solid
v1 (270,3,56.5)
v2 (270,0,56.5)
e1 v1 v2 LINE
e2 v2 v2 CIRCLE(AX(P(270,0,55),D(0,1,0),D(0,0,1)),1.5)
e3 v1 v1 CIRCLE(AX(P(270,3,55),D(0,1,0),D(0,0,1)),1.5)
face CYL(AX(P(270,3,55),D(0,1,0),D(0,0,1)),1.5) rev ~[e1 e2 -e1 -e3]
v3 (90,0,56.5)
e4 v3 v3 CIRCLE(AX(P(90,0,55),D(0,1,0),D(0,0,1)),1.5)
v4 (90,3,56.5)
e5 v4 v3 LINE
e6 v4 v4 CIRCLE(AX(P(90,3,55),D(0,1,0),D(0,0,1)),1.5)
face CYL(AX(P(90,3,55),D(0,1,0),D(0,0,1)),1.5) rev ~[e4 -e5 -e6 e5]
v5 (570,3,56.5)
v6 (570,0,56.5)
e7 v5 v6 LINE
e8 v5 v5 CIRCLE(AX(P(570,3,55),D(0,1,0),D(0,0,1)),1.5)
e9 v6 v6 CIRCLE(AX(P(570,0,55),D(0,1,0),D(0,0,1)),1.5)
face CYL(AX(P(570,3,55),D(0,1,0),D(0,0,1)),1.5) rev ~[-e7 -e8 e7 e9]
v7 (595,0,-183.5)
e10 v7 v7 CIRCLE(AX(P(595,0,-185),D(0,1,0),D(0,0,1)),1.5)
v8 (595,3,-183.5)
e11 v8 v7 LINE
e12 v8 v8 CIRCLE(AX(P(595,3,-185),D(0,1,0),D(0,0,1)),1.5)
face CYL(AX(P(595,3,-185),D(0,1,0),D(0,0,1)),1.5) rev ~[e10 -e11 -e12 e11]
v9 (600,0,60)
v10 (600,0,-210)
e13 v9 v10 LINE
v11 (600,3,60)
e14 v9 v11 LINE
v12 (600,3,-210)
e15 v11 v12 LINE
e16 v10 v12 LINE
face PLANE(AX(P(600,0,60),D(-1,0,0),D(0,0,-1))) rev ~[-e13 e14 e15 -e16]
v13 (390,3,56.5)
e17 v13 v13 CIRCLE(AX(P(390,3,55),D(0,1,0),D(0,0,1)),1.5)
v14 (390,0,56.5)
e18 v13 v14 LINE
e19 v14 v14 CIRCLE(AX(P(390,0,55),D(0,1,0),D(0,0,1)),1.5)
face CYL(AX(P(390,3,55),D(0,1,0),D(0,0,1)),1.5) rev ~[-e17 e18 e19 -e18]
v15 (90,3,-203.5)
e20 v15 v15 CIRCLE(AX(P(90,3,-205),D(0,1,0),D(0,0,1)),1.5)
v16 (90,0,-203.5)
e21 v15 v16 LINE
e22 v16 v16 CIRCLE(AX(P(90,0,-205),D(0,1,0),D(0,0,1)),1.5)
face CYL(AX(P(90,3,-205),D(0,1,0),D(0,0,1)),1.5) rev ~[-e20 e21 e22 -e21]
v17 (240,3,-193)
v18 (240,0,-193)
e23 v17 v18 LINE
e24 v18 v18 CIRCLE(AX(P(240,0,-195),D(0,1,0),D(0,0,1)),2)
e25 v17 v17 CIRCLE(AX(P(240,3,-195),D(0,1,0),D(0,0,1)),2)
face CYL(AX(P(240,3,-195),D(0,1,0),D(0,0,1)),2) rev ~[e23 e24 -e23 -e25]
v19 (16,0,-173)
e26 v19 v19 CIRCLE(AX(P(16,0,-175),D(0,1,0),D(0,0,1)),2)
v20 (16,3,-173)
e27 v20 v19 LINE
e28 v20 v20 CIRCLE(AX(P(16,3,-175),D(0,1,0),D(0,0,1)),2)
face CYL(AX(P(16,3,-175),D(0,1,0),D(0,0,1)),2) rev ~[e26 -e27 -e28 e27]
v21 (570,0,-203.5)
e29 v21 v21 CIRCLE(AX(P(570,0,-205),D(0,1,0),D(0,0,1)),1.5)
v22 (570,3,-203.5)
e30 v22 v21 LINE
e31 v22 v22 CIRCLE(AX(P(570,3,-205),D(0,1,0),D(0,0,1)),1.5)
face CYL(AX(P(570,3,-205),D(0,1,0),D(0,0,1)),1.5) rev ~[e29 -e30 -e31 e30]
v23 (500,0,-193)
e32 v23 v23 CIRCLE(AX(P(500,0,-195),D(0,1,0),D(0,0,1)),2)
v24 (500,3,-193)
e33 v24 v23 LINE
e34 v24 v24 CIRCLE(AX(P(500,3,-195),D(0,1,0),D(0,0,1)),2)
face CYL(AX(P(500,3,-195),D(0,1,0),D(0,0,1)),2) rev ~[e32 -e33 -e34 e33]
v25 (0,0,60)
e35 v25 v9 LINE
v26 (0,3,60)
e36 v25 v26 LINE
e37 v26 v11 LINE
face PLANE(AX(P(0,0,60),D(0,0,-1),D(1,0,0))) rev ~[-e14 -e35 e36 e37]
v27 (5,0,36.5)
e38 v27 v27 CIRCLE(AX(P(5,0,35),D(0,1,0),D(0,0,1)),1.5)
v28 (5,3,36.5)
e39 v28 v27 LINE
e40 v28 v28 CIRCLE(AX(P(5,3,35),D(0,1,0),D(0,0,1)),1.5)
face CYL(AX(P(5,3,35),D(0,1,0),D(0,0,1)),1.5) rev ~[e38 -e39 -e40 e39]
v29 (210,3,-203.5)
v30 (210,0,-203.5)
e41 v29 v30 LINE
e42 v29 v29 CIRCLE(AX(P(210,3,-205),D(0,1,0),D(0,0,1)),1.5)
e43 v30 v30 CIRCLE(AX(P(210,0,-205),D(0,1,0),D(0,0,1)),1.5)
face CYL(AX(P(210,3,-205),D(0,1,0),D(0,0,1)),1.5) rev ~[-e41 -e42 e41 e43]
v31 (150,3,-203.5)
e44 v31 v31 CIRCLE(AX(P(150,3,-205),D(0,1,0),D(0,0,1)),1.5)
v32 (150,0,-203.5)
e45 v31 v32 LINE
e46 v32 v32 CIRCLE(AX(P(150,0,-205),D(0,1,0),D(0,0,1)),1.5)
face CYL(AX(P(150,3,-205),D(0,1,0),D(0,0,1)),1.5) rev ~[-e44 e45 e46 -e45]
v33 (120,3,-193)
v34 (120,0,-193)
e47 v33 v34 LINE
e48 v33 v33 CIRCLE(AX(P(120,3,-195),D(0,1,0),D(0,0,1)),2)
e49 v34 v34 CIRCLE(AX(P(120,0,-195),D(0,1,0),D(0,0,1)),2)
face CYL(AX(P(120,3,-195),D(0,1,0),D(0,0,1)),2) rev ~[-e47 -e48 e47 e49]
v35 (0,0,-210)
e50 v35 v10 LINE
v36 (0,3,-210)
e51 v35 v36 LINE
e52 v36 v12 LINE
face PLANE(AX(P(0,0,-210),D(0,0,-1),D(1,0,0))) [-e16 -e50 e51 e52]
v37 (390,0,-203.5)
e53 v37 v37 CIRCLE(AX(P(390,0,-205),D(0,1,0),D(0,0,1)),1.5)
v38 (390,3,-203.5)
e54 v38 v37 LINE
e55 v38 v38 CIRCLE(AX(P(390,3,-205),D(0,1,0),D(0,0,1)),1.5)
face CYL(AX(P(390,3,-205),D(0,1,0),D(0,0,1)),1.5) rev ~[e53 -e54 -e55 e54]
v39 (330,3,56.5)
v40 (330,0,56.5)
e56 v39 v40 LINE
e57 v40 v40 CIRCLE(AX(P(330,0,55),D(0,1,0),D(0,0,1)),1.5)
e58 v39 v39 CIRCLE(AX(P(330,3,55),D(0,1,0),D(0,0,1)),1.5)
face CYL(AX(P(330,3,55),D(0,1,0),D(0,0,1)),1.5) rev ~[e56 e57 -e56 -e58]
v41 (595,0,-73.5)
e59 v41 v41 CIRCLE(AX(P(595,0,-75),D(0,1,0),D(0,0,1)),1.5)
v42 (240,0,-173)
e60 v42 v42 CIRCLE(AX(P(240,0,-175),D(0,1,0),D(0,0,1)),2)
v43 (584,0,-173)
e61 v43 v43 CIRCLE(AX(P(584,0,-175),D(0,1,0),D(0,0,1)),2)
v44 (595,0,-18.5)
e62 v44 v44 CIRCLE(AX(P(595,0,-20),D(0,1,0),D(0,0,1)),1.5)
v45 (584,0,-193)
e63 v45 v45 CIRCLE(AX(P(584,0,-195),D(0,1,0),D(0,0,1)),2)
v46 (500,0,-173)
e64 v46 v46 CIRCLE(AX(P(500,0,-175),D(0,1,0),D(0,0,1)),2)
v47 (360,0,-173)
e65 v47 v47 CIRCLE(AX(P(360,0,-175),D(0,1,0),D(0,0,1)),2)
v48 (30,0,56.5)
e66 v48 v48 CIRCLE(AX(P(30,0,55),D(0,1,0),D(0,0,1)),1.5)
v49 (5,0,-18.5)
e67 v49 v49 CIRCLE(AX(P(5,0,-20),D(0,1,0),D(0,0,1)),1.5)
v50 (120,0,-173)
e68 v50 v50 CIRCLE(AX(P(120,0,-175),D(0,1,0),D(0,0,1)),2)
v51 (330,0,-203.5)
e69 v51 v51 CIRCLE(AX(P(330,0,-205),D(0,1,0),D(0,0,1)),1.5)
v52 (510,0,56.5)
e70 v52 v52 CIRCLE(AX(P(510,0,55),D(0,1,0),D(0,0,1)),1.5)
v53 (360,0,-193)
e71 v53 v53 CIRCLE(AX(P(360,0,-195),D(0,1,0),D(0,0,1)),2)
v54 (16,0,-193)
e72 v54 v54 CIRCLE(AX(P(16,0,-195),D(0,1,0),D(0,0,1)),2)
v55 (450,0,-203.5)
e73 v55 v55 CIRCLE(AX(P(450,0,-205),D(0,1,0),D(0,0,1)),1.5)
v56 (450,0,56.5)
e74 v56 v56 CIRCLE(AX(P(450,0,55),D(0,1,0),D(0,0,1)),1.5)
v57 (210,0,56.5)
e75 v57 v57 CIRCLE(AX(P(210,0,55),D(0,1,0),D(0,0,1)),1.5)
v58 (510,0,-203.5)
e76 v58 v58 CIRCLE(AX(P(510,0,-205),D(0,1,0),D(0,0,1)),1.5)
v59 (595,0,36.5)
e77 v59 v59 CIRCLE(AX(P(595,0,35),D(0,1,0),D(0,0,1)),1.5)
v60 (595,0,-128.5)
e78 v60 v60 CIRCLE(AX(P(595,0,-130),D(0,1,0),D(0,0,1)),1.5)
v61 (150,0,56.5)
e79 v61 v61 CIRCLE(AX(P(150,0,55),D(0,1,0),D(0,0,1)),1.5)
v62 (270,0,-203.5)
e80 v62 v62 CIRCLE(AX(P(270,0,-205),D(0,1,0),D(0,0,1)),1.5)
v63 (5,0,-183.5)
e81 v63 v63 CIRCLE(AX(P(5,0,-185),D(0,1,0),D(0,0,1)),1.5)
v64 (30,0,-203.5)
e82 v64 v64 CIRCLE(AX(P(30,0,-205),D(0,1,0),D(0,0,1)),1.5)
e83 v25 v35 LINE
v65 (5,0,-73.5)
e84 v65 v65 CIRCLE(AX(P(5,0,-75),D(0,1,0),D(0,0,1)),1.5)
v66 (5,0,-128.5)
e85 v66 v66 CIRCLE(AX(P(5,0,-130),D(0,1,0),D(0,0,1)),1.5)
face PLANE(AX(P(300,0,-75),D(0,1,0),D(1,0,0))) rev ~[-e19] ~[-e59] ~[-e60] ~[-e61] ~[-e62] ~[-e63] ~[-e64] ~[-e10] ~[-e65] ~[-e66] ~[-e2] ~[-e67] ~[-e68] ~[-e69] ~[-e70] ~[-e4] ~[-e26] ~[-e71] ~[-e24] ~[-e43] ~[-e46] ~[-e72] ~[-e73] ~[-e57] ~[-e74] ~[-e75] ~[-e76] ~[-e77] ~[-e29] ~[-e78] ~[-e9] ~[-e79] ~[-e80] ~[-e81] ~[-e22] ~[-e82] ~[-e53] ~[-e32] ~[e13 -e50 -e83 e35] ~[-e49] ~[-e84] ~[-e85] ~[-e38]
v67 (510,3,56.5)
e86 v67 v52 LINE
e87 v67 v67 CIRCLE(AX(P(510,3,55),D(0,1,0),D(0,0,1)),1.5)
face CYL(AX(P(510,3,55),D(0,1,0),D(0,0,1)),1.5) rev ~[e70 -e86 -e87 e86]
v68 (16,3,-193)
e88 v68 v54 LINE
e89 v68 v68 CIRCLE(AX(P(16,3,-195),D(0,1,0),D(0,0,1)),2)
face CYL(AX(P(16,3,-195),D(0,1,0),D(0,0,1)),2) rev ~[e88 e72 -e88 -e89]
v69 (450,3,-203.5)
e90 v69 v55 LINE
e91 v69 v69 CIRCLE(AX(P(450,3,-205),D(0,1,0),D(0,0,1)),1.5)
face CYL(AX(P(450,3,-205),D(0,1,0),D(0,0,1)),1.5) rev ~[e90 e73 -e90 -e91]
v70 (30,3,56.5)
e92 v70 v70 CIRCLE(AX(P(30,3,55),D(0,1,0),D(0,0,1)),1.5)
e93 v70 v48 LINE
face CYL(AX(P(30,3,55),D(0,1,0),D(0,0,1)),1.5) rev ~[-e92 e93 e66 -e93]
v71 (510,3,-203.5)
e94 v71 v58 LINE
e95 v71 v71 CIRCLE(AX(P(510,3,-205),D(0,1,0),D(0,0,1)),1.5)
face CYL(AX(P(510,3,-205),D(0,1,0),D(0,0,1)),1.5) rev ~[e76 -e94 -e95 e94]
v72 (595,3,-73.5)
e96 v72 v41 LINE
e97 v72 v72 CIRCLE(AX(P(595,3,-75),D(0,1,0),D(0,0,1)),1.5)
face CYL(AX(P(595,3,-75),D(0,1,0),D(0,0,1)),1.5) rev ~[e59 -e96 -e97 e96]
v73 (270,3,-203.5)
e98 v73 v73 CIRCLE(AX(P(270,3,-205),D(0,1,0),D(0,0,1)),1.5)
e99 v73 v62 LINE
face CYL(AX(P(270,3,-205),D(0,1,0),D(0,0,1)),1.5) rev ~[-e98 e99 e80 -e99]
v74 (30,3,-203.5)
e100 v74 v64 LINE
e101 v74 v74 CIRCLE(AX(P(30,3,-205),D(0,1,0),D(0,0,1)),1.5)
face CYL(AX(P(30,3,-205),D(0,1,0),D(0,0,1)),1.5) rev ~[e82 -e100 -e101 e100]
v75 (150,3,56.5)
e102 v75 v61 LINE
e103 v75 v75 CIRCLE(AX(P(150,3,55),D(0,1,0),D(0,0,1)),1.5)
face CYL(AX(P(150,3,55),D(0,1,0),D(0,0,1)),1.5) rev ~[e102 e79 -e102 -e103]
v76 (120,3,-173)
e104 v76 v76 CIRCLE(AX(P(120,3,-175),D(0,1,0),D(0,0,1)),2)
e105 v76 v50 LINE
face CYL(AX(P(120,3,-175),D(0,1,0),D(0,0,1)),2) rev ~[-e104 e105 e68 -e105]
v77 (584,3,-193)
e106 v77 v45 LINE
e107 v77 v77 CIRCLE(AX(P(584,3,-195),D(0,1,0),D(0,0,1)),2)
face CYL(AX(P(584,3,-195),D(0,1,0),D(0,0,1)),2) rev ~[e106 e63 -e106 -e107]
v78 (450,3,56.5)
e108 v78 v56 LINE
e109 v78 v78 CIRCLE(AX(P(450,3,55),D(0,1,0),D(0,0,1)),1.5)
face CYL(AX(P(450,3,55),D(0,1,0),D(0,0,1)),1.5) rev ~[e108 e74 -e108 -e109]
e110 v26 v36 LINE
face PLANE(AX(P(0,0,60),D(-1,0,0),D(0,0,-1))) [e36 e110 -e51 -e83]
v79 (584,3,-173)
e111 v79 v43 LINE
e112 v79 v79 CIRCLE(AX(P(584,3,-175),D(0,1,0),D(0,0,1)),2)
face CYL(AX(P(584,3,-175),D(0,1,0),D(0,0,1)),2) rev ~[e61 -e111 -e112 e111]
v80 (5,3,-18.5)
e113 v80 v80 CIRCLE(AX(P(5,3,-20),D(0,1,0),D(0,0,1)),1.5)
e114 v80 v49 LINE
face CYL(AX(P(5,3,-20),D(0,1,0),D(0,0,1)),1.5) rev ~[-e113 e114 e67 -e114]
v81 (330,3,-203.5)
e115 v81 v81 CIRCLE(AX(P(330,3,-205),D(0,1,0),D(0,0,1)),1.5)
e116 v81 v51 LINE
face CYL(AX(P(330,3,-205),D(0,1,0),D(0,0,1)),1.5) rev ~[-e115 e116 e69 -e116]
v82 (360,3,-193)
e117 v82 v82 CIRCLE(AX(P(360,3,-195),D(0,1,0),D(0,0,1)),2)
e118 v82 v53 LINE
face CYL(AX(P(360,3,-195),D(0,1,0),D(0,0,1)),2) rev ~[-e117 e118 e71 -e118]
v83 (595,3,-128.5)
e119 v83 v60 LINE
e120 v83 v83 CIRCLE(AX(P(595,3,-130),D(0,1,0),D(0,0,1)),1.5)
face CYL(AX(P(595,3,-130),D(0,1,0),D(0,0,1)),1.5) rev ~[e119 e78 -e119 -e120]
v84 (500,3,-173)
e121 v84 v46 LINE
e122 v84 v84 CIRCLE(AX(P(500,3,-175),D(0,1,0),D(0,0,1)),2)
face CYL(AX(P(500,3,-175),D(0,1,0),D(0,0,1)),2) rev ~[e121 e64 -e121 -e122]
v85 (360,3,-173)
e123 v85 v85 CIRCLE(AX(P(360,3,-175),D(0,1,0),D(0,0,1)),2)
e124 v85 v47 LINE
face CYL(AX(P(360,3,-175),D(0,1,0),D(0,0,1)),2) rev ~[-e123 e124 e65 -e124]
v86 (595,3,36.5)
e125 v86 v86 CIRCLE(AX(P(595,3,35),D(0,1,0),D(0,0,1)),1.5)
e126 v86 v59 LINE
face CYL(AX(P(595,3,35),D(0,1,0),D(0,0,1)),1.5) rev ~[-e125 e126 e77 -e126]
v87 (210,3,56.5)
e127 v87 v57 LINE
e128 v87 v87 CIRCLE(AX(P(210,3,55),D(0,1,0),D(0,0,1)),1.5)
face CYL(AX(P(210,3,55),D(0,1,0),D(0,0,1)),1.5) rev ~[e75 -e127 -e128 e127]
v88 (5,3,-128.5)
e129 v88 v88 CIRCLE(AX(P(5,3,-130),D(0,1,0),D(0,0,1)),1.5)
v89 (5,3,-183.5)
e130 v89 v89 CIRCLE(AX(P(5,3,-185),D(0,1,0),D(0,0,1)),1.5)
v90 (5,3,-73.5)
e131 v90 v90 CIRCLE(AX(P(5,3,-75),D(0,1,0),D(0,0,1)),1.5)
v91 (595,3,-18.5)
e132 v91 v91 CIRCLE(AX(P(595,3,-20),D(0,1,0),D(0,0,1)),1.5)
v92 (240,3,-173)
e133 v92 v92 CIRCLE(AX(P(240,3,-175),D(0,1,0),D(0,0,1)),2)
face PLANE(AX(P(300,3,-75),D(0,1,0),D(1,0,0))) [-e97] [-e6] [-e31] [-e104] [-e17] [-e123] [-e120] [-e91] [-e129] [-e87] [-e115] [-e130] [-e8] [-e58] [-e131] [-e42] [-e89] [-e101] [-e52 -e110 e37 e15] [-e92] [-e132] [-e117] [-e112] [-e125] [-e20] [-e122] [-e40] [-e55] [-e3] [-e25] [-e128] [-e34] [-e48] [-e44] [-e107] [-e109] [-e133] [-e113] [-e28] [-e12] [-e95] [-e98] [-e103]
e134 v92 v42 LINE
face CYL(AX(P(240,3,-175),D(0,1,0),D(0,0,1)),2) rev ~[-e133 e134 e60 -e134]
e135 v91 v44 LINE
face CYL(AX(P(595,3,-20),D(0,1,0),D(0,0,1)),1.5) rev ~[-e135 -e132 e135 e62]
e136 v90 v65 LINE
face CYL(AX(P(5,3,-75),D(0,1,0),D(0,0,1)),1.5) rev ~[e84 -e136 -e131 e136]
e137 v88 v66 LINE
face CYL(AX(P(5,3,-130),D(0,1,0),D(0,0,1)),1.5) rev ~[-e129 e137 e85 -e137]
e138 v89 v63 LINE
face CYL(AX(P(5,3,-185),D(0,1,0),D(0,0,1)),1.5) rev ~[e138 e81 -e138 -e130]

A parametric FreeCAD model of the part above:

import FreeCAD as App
import Part
import Sketcher
Q = App.Units.Quantity

doc = App.newDocument("Part")
body = doc.addObject("PartDesign::Body", "Body")

# Sketch on XZ plane
sketch1 = body.newObject("Sketcher::SketchObject", "Sketch")
sketch1.AttachmentSupport = (doc.getObject("XZ_Plane"), [""])
sketch1.MapMode = "FlatFace"
sketch1.addGeometry([
    Part.LineSegment(App.Vector(0, -210, 0), App.Vector(0, 60, 0)),
    Part.LineSegment(App.Vector(0, 60, 0), App.Vector(600, 60, 0)),
    Part.LineSegment(App.Vector(600, 60, 0), App.Vector(600, -210, 0)),
    Part.LineSegment(App.Vector(600, -210, 0), App.Vector(0, -210, 0)),
], False)
sketch1.addConstraint([
    Sketcher.Constraint("Coincident", 0, 2, 1, 1),
    Sketcher.Constraint("Coincident", 1, 2, 2, 1),
    Sketcher.Constraint("Coincident", 2, 2, 3, 1),
    Sketcher.Constraint("Coincident", 3, 2, 0, 1),
    Sketcher.Constraint("Vertical", 0),
    Sketcher.Constraint("Horizontal", 1),
    Sketcher.Constraint("Vertical", 2),
    Sketcher.Constraint("Horizontal", 3),
    Sketcher.Constraint("PointOnObject", 0, 2, -2),
    Sketcher.Constraint("DistanceX", 1, 1, 1, 2, Q("600 mm")),
    Sketcher.Constraint("DistanceY", 0, 1, 0, 2, Q("270 mm")),
    Sketcher.Constraint("DistanceY", -1, 1, 0, 2, Q("60 mm")),
])
pad1 = body.newObject("PartDesign::Pad", "Pad")
pad1.Profile = sketch1
pad1.Length = 3
pad1.Reversed = True

# Sketch on XZ plane
sketch2 = body.newObject("Sketcher::SketchObject", "Sketch001")
sketch2.AttachmentSupport = (doc.getObject("XZ_Plane"), [""])
sketch2.MapMode = "FlatFace"
sketch2.AttachmentOffset = App.Placement(App.Vector(0, 0, -3), App.Rotation())
sketch2.addGeometry([
    Part.Circle(App.Vector(16, -195, 0), App.Vector(0, 0, 1), 2),  # 0
    Part.Circle(App.Vector(16, -175, 0), App.Vector(0, 0, 1), 2),  # 1
    Part.Circle(App.Vector(584, -195, 0), App.Vector(0, 0, 1), 2),  # 2
    Part.Circle(App.Vector(584, -175, 0), App.Vector(0, 0, 1), 2),  # 3
    Part.Circle(App.Vector(120, -195, 0), App.Vector(0, 0, 1), 2),  # 4
    Part.Circle(App.Vector(120, -175, 0), App.Vector(0, 0, 1), 2),  # 5
    Part.Circle(App.Vector(240, -195, 0), App.Vector(0, 0, 1), 2),  # 6
    Part.Circle(App.Vector(240, -175, 0), App.Vector(0, 0, 1), 2),  # 7
    Part.Circle(App.Vector(360, -195, 0), App.Vector(0, 0, 1), 2),  # 8
    Part.Circle(App.Vector(360, -175, 0), App.Vector(0, 0, 1), 2),  # 9
    Part.Circle(App.Vector(500, -195, 0), App.Vector(0, 0, 1), 2),  # 10
    Part.Circle(App.Vector(500, -175, 0), App.Vector(0, 0, 1), 2),  # 11
], False)
sketch2.addConstraint([
    Sketcher.Constraint("Equal", 0, 1),
    Sketcher.Constraint("Equal", 1, 2),
    Sketcher.Constraint("Equal", 2, 3),
    Sketcher.Constraint("Equal", 3, 4),
    Sketcher.Constraint("Equal", 4, 5),
    Sketcher.Constraint("Equal", 5, 6),
    Sketcher.Constraint("Equal", 6, 7),
    Sketcher.Constraint("Equal", 7, 8),
    Sketcher.Constraint("Equal", 8, 9),
    Sketcher.Constraint("Equal", 9, 10),
    Sketcher.Constraint("Equal", 10, 11),
    Sketcher.Constraint("Horizontal", 0, 3, 2, 3),
    Sketcher.Constraint("Horizontal", 1, 3, 3, 3),
    Sketcher.Constraint("Horizontal", 2, 3, 4, 3),
    Sketcher.Constraint("Horizontal", 3, 3, 5, 3),
    Sketcher.Constraint("Horizontal", 4, 3, 6, 3),
    Sketcher.Constraint("Horizontal", 5, 3, 7, 3),
    Sketcher.Constraint("Horizontal", 6, 3, 8, 3),
    Sketcher.Constraint("Horizontal", 7, 3, 9, 3),
    Sketcher.Constraint("Horizontal", 8, 3, 10, 3),
    Sketcher.Constraint("Horizontal", 9, 3, 11, 3),
    Sketcher.Constraint("Vertical", 0, 3, 1, 3),
    Sketcher.Constraint("Vertical", 2, 3, 3, 3),
    Sketcher.Constraint("Vertical", 4, 3, 5, 3),
    Sketcher.Constraint("Vertical", 6, 3, 7, 3),
    Sketcher.Constraint("Vertical", 8, 3, 9, 3),
    Sketcher.Constraint("Vertical", 10, 3, 11, 3),
    Sketcher.Constraint("Diameter", 0, Q("4 mm")),
    Sketcher.Constraint("DistanceX", -1, 1, 0, 3, Q("16 mm")),
    Sketcher.Constraint("DistanceY", 0, 3, -1, 1, Q("195 mm")),
    Sketcher.Constraint("DistanceY", 1, 3, -1, 1, Q("175 mm")),
    Sketcher.Constraint("DistanceX", -1, 1, 2, 3, Q("584 mm")),
    Sketcher.Constraint("DistanceX", -1, 1, 4, 3, Q("120 mm")),
    Sketcher.Constraint("DistanceX", -1, 1, 6, 3, Q("240 mm")),
    Sketcher.Constraint("DistanceX", -1, 1, 8, 3, Q("360 mm")),
    Sketcher.Constraint("DistanceX", -1, 1, 10, 3, Q("500 mm")),
])
pocket1 = body.newObject("PartDesign::Pocket", "Pocket")
pocket1.Profile = sketch2
pocket1.Type = "ThroughAll"
pocket1.Reversed = True

# Sketch on XZ plane
sketch3 = body.newObject("Sketcher::SketchObject", "Sketch002")
sketch3.AttachmentSupport = (doc.getObject("XZ_Plane"), [""])
sketch3.MapMode = "FlatFace"
sketch3.AttachmentOffset = App.Placement(App.Vector(0, 0, -3), App.Rotation())
sketch3.addGeometry([
    Part.Circle(App.Vector(30, 55, 0), App.Vector(0, 0, 1), 1.5),
    Part.Circle(App.Vector(30, -205, 0), App.Vector(0, 0, 1), 1.5),
], False)
sketch3.addConstraint([
    Sketcher.Constraint("Equal", 0, 1),
    Sketcher.Constraint("Vertical", 0, 3, 1, 3),
    Sketcher.Constraint("Diameter", 0, Q("3 mm")),
    Sketcher.Constraint("DistanceX", -1, 1, 0, 3, Q("30 mm")),
    Sketcher.Constraint("DistanceY", -1, 1, 0, 3, Q("55 mm")),
    Sketcher.Constraint("DistanceY", 1, 3, -1, 1, Q("205 mm")),
])
pocket2 = body.newObject("PartDesign::Pocket", "Pocket001")
pocket2.Profile = sketch3
pocket2.Type = "ThroughAll"
pocket2.Reversed = True
doc.recompute()

linearpattern = body.newObject("PartDesign::LinearPattern", "LinearPattern")
linearpattern.Originals = [pocket2]
linearpattern.Direction = (doc.getObject("X_Axis"), [""])
linearpattern.Mode = "offset"
linearpattern.Offset = 60
linearpattern.Occurrences = 10
body.Tip = linearpattern

# Sketch on XZ plane
sketch4 = body.newObject("Sketcher::SketchObject", "Sketch003")
sketch4.AttachmentSupport = (doc.getObject("XZ_Plane"), [""])
sketch4.MapMode = "FlatFace"
sketch4.AttachmentOffset = App.Placement(App.Vector(0, 0, -3), App.Rotation())
sketch4.addGeometry([
    Part.Circle(App.Vector(5, -185, 0), App.Vector(0, 0, 1), 1.5),  # 0
    Part.Circle(App.Vector(5, -130, 0), App.Vector(0, 0, 1), 1.5),  # 1
    Part.Circle(App.Vector(5, -75, 0), App.Vector(0, 0, 1), 1.5),  # 2
    Part.Circle(App.Vector(5, -20, 0), App.Vector(0, 0, 1), 1.5),  # 3
    Part.Circle(App.Vector(595, -185, 0), App.Vector(0, 0, 1), 1.5),  # 4
    Part.Circle(App.Vector(595, -130, 0), App.Vector(0, 0, 1), 1.5),  # 5
    Part.Circle(App.Vector(595, -75, 0), App.Vector(0, 0, 1), 1.5),  # 6
    Part.Circle(App.Vector(595, -20, 0), App.Vector(0, 0, 1), 1.5),  # 7
    Part.Circle(App.Vector(5, 35, 0), App.Vector(0, 0, 1), 1.5),  # 8
    Part.Circle(App.Vector(595, 35, 0), App.Vector(0, 0, 1), 1.5),  # 9
], False)
sketch4.addConstraint([
    Sketcher.Constraint("Equal", 0, 1),
    Sketcher.Constraint("Equal", 1, 2),
    Sketcher.Constraint("Equal", 2, 3),
    Sketcher.Constraint("Equal", 3, 4),
    Sketcher.Constraint("Equal", 4, 5),
    Sketcher.Constraint("Equal", 5, 6),
    Sketcher.Constraint("Equal", 6, 7),
    Sketcher.Constraint("Equal", 7, 8),
    Sketcher.Constraint("Equal", 8, 9),
    Sketcher.Constraint("Horizontal", 0, 3, 4, 3),
    Sketcher.Constraint("Horizontal", 1, 3, 5, 3),
    Sketcher.Constraint("Horizontal", 2, 3, 6, 3),
    Sketcher.Constraint("Horizontal", 3, 3, 7, 3),
    Sketcher.Constraint("Horizontal", 8, 3, 9, 3),
    Sketcher.Constraint("Vertical", 0, 3, 1, 3),
    Sketcher.Constraint("Vertical", 1, 3, 2, 3),
    Sketcher.Constraint("Vertical", 2, 3, 3, 3),
    Sketcher.Constraint("Vertical", 4, 3, 5, 3),
    Sketcher.Constraint("Vertical", 5, 3, 6, 3),
    Sketcher.Constraint("Vertical", 6, 3, 7, 3),
    Sketcher.Constraint("Vertical", 3, 3, 8, 3),
    Sketcher.Constraint("Vertical", 7, 3, 9, 3),
    Sketcher.Constraint("Diameter", 0, Q("3 mm")),
    Sketcher.Constraint("DistanceX", -1, 1, 0, 3, Q("5 mm")),
    Sketcher.Constraint("DistanceY", 0, 3, -1, 1, Q("185 mm")),
    Sketcher.Constraint("DistanceY", 1, 3, -1, 1, Q("130 mm")),
    Sketcher.Constraint("DistanceY", 2, 3, -1, 1, Q("75 mm")),
    Sketcher.Constraint("DistanceY", 3, 3, -1, 1, Q("20 mm")),
    Sketcher.Constraint("DistanceX", -1, 1, 4, 3, Q("595 mm")),
    Sketcher.Constraint("DistanceY", -1, 1, 8, 3, Q("35 mm")),
])
pocket3 = body.newObject("PartDesign::Pocket", "Pocket002")
pocket3.Profile = sketch4
pocket3.Type = "ThroughAll"
pocket3.Reversed = True

doc.recompute()
